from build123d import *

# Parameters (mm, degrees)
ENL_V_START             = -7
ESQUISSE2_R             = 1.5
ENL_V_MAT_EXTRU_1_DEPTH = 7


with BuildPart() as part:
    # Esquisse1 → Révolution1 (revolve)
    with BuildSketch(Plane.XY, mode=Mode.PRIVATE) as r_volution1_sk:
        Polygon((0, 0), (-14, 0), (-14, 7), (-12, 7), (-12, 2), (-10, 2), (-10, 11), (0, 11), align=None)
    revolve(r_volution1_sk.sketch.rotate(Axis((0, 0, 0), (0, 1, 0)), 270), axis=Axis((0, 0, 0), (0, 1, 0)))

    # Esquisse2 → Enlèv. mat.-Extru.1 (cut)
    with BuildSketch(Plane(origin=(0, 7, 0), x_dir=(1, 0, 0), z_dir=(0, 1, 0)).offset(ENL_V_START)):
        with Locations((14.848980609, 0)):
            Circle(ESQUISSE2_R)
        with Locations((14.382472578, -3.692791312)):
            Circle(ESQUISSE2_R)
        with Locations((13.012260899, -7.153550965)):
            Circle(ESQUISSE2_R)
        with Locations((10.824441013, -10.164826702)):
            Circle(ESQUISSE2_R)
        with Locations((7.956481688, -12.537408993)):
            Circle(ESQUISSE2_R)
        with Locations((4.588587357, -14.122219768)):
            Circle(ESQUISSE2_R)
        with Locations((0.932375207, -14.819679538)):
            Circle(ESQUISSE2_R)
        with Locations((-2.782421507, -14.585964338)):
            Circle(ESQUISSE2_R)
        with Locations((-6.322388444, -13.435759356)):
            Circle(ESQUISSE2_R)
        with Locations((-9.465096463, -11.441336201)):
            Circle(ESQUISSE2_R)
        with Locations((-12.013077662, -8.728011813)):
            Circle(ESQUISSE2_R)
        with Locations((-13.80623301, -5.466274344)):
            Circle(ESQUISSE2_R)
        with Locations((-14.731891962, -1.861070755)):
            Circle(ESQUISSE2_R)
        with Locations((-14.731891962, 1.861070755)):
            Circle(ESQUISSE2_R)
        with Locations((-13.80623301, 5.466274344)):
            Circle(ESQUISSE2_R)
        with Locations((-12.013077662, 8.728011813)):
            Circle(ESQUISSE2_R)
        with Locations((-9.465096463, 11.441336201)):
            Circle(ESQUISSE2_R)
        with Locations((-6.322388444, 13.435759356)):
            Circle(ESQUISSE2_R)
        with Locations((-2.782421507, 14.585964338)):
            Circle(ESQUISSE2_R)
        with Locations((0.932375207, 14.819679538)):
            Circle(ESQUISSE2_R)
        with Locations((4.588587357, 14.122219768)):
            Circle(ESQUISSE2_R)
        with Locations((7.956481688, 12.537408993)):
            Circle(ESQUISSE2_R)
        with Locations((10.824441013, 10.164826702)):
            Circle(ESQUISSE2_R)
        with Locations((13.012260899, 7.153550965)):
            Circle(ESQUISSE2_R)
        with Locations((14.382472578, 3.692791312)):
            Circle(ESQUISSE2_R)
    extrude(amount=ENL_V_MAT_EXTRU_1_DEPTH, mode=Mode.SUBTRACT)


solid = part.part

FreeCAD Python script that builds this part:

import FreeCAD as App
import Part
import Sketcher

doc = App.newDocument("Part")
params = doc.addObject("Spreadsheet::Sheet", "Params")
for row, (alias, value) in enumerate([
    ("sketch1_width", "14 mm"),
    ("sketch1_width2", "10 mm"),
    ("sketch1_height", "11 mm"),
    ("sketch1_height2", "9 mm"),
    ("sketch1_height3", "5 mm"),
    ("revolution_angle", "360 deg"),
    ("sketch2_diameter", "3 mm"),
    ("pocket1_length", "7 mm"),
], start=1):
    params.set(f"A{row}", alias)
    params.set(f"B{row}", "=" + value)
    params.setAlias(f"B{row}", alias)

body = doc.addObject("PartDesign::Body", "Body")

# Sketch on XY plane
sketch1 = body.newObject("Sketcher::SketchObject", "Sketch")
sketch1.AttachmentSupport = (doc.getObject("XY_Plane"), [""])
sketch1.MapMode = "FlatFace"
sketch1.addGeometry([
    Part.LineSegment(App.Vector(-14, 0, 0), App.Vector(0, 0, 0)),  # 0
    Part.LineSegment(App.Vector(0, 0, 0), App.Vector(0, 11, 0)),  # 1
    Part.LineSegment(App.Vector(0, 11, 0), App.Vector(-10, 11, 0)),  # 2
    Part.LineSegment(App.Vector(-10, 11, 0), App.Vector(-10, 2, 0)),  # 3
    Part.LineSegment(App.Vector(-10, 2, 0), App.Vector(-12, 2, 0)),  # 4
    Part.LineSegment(App.Vector(-12, 2, 0), App.Vector(-12, 7, 0)),  # 5
    Part.LineSegment(App.Vector(-12, 7, 0), App.Vector(-14, 7, 0)),  # 6
    Part.LineSegment(App.Vector(-14, 7, 0), App.Vector(-14, 0, 0)),  # 7
], False)
sketch1.addConstraint([
    Sketcher.Constraint("Coincident", 0, 2, 1, 1),
    Sketcher.Constraint("Coincident", 1, 2, 2, 1),
    Sketcher.Constraint("Coincident", 2, 2, 3, 1),
    Sketcher.Constraint("Coincident", 3, 2, 4, 1),
    Sketcher.Constraint("Coincident", 4, 2, 5, 1),
    Sketcher.Constraint("Coincident", 5, 2, 6, 1),
    Sketcher.Constraint("Coincident", 6, 2, 7, 1),
    Sketcher.Constraint("Coincident", 7, 2, 0, 1),
    Sketcher.Constraint("Horizontal", 0),
    Sketcher.Constraint("Vertical", 1),
    Sketcher.Constraint("Horizontal", 2),
    Sketcher.Constraint("Vertical", 3),
    Sketcher.Constraint("Horizontal", 4),
    Sketcher.Constraint("Vertical", 5),
    Sketcher.Constraint("Horizontal", 6),
    Sketcher.Constraint("Vertical", 7),
    Sketcher.Constraint("Coincident", 0, 2, -1, 1),
    Sketcher.Constraint("Equal", 4, 6),
    Sketcher.Constraint("DistanceX", 0, 1, 0, 2, 14.0),
    Sketcher.Constraint("DistanceX", 2, 2, 2, 1, 10.0),
    Sketcher.Constraint("DistanceY", 1, 1, 1, 2, 11.0),
    Sketcher.Constraint("DistanceY", 3, 2, 3, 1, 9.0),
    Sketcher.Constraint("DistanceY", 5, 1, 5, 2, 5.0),
])
sketch1.setExpression("Constraints[18]", "Params.sketch1_width")
sketch1.setExpression("Constraints[19]", "Params.sketch1_width2")
sketch1.setExpression("Constraints[20]", "Params.sketch1_height")
sketch1.setExpression("Constraints[21]", "Params.sketch1_height2")
sketch1.setExpression("Constraints[22]", "Params.sketch1_height3")
revolution = body.newObject("PartDesign::Revolution", "Revolution")
revolution.Profile = sketch1
revolution.ReferenceAxis = (sketch1, ["V_Axis"])
revolution.setExpression("Angle", "Params.revolution_angle")

# Sketch on XZ plane
sketch2 = body.newObject("Sketcher::SketchObject", "Sketch001")
sketch2.AttachmentSupport = (doc.getObject("XZ_Plane"), [""])
sketch2.MapMode = "FlatFace"
sketch2.addGeometry([
    Part.Circle(App.Vector(14.848981, 0, 0), App.Vector(0, 0, 1), 1.5),  # 0
    Part.Circle(App.Vector(14.382473, 3.692791, 0), App.Vector(0, 0, 1), 1.5),  # 1
    Part.Circle(App.Vector(13.012261, 7.153551, 0), App.Vector(0, 0, 1), 1.5),  # 2
    Part.Circle(App.Vector(10.824441, 10.164827, 0), App.Vector(0, 0, 1), 1.5),  # 3
    Part.Circle(App.Vector(7.956482, 12.537409, 0), App.Vector(0, 0, 1), 1.5),  # 4
    Part.Circle(App.Vector(4.588587, 14.12222, 0), App.Vector(0, 0, 1), 1.5),  # 5
    Part.Circle(App.Vector(0.932375, 14.81968, 0), App.Vector(0, 0, 1), 1.5),  # 6
    Part.Circle(App.Vector(-2.782422, 14.585964, 0), App.Vector(0, 0, 1), 1.5),  # 7
    Part.Circle(App.Vector(-6.322388, 13.435759, 0), App.Vector(0, 0, 1), 1.5),  # 8
    Part.Circle(App.Vector(-9.465096, 11.441336, 0), App.Vector(0, 0, 1), 1.5),  # 9
    Part.Circle(App.Vector(-12.013078, 8.728012, 0), App.Vector(0, 0, 1), 1.5),  # 10
    Part.Circle(App.Vector(-13.806233, 5.466274, 0), App.Vector(0, 0, 1), 1.5),  # 11
    Part.Circle(App.Vector(-14.731892, 1.861071, 0), App.Vector(0, 0, 1), 1.5),  # 12
    Part.Circle(App.Vector(-14.731892, -1.861071, 0), App.Vector(0, 0, 1), 1.5),  # 13
    Part.Circle(App.Vector(-13.806233, -5.466274, 0), App.Vector(0, 0, 1), 1.5),  # 14
    Part.Circle(App.Vector(-12.013078, -8.728012, 0), App.Vector(0, 0, 1), 1.5),  # 15
    Part.Circle(App.Vector(-9.465096, -11.441336, 0), App.Vector(0, 0, 1), 1.5),  # 16
    Part.Circle(App.Vector(-6.322388, -13.435759, 0), App.Vector(0, 0, 1), 1.5),  # 17
    Part.Circle(App.Vector(-2.782422, -14.585964, 0), App.Vector(0, 0, 1), 1.5),  # 18
    Part.Circle(App.Vector(0.932375, -14.81968, 0), App.Vector(0, 0, 1), 1.5),  # 19
    Part.Circle(App.Vector(4.588587, -14.12222, 0), App.Vector(0, 0, 1), 1.5),  # 20
    Part.Circle(App.Vector(7.956482, -12.537409, 0), App.Vector(0, 0, 1), 1.5),  # 21
    Part.Circle(App.Vector(10.824441, -10.164827, 0), App.Vector(0, 0, 1), 1.5),  # 22
    Part.Circle(App.Vector(13.012261, -7.153551, 0), App.Vector(0, 0, 1), 1.5),  # 23
    Part.Circle(App.Vector(14.382473, -3.692791, 0), App.Vector(0, 0, 1), 1.5),  # 24
], False)
sketch2.addConstraint([
    Sketcher.Constraint("Equal", 0, 1),
    Sketcher.Constraint("Equal", 1, 2),
    Sketcher.Constraint("Equal", 2, 3),
    Sketcher.Constraint("Equal", 3, 4),
    Sketcher.Constraint("Equal", 4, 5),
    Sketcher.Constraint("Equal", 5, 6),
    Sketcher.Constraint("Equal", 6, 7),
    Sketcher.Constraint("Equal", 7, 8),
    Sketcher.Constraint("Equal", 8, 9),
    Sketcher.Constraint("Equal", 9, 10),
    Sketcher.Constraint("Equal", 10, 11),
    Sketcher.Constraint("Equal", 11, 12),
    Sketcher.Constraint("Equal", 12, 13),
    Sketcher.Constraint("Equal", 13, 14),
    Sketcher.Constraint("Equal", 14, 15),
    Sketcher.Constraint("Equal", 15, 16),
    Sketcher.Constraint("Equal", 16, 17),
    Sketcher.Constraint("Equal", 17, 18),
    Sketcher.Constraint("Equal", 18, 19),
    Sketcher.Constraint("Equal", 19, 20),
    Sketcher.Constraint("Equal", 20, 21),
    Sketcher.Constraint("Equal", 21, 22),
    Sketcher.Constraint("Equal", 22, 23),
    Sketcher.Constraint("Equal", 23, 24),
    Sketcher.Constraint("Symmetric", 12, 3, 13, 3, -1),
    Sketcher.Constraint("Symmetric", 11, 3, 14, 3, -1),
    Sketcher.Constraint("Symmetric", 10, 3, 15, 3, -1),
    Sketcher.Constraint("Symmetric", 9, 3, 16, 3, -1),
    Sketcher.Constraint("Symmetric", 8, 3, 17, 3, -1),
    Sketcher.Constraint("Symmetric", 7, 3, 18, 3, -1),
    Sketcher.Constraint("Symmetric", 6, 3, 19, 3, -1),
    Sketcher.Constraint("Symmetric", 5, 3, 20, 3, -1),
    Sketcher.Constraint("Symmetric", 4, 3, 21, 3, -1),
    Sketcher.Constraint("Symmetric", 3, 3, 22, 3, -1),
    Sketcher.Constraint("Symmetric", 2, 3, 23, 3, -1),
    Sketcher.Constraint("Symmetric", 1, 3, 24, 3, -1),
    Sketcher.Constraint("PointOnObject", 0, 3, -1),
    Sketcher.Constraint("Diameter", 0, 3.0),
    Sketcher.Constraint("DistanceX", 4, 3, 0, 3, 6.892499),
    Sketcher.Constraint("DistanceX", -1, 1, 0, 3, 14.848981),
    Sketcher.Constraint("DistanceY", -1, 1, 1, 3, 3.692791),
    Sketcher.Constraint("DistanceX", -1, 1, 2, 3, 13.012261),
    Sketcher.Constraint("DistanceY", -1, 1, 2, 3, 7.153551),
    Sketcher.Constraint("DistanceX", -1, 1, 3, 3, 10.824441),
    Sketcher.Constraint("DistanceY", -1, 1, 4, 3, 12.537409),
    Sketcher.Constraint("DistanceY", -1, 1, 5, 3, 14.12222),
    Sketcher.Constraint("DistanceY", -1, 1, 6, 3, 14.81968),
    Sketcher.Constraint("DistanceX", 7, 3, -1, 1, 2.782422),
    Sketcher.Constraint("DistanceX", 8, 3, -1, 1, 6.322388),
    Sketcher.Constraint("DistanceY", -1, 1, 8, 3, 13.435759),
    Sketcher.Constraint("DistanceY", -1, 1, 10, 3, 8.728012),
    Sketcher.Constraint("DistanceX", 12, 3, -1, 1, 14.731892),
    Sketcher.Constraint("DistanceY", -1, 1, 12, 3, 1.861071),
    Sketcher.Constraint("DistanceX", 1, 3, 0, 3, 0.466508),
    Sketcher.Constraint("DistanceX", 7, 3, 5, 3, 7.371009),
    Sketcher.Constraint("DistanceX", 9, 3, 8, 3, 3.142708),
    Sketcher.Constraint("DistanceY", 9, 3, 7, 3, 3.144628),
    Sketcher.Constraint("DistanceX", 9, 3, 6, 3, 10.397472),
    Sketcher.Constraint("DistanceX", 10, 3, 9, 3, 2.547981),
    Sketcher.Constraint("DistanceY", 11, 3, 9, 3, 5.975062),
    Sketcher.Constraint("DistanceX", 11, 3, 7, 3, 11.023812),
    Sketcher.Constraint("DistanceY", 14, 3, 11, 3, 10.932549),
    Sketcher.Constraint("DistanceY", -1, 1, 3, 3, 10.164827),
])
sketch2.setExpression("Constraints[37]", "Params.sketch2_diameter")
pocket1 = body.newObject("PartDesign::Pocket", "Pocket")
pocket1.Profile = sketch2
pocket1.setExpression("Length", "Params.pocket1_length")

doc.recompute()
